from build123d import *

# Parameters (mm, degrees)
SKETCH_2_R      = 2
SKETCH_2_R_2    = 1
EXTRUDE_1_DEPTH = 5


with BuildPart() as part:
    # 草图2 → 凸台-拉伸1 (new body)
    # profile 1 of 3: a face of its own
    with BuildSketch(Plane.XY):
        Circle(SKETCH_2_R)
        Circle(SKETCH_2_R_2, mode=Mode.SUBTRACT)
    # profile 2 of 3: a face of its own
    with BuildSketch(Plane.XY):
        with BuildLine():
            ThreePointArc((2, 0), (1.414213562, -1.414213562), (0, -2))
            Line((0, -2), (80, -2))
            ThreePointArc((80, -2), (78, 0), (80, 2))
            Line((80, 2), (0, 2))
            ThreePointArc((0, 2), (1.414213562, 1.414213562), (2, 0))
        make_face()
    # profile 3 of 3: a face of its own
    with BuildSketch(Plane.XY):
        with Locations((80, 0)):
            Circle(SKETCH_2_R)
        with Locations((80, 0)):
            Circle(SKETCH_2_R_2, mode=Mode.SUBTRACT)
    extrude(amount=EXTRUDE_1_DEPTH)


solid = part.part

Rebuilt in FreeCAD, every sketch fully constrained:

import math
import FreeCAD as App
import Part
import Sketcher
from FreeCAD import Vector

doc = App.newDocument("Part")
body = doc.addObject("PartDesign::Body", "Body")

sketch1 = body.newObject("Sketcher::SketchObject", "Sketch")
sketch1.AttachmentSupport = (doc.getObject("XY_Plane"), [""])
sketch1.MapMode = "FlatFace"
sketch1.addGeometry(Part.ArcOfCircle(Part.Circle(Vector(0, 0, 0), Vector(0, 0, 1), 2), math.radians(90), math.radians(270)), False)
sketch1.addGeometry(Part.LineSegment(Vector(0, -2, 0), Vector(80, -2, 0)), False)
sketch1.addGeometry(Part.ArcOfCircle(Part.Circle(Vector(80, 0, 0), Vector(0, 0, 1), 2), math.radians(-90), math.radians(90)), False)
sketch1.addGeometry(Part.LineSegment(Vector(80, 2, 0), Vector(0, 2, 0)), False)
sketch1.addGeometry(Part.Circle(Vector(0, 0, 0), Vector(0, 0, 1), 1), False)
sketch1.addGeometry(Part.Circle(Vector(80, 0, 0), Vector(0, 0, 1), 1), False)
sketch1.addConstraint(Sketcher.Constraint("Tangent", 0, 2, 1, 1))
sketch1.addConstraint(Sketcher.Constraint("Tangent", 1, 2, 2, 1))
sketch1.addConstraint(Sketcher.Constraint("Tangent", 2, 2, 3, 1))
sketch1.addConstraint(Sketcher.Constraint("Tangent", 3, 2, 0, 1))
sketch1.addConstraint(Sketcher.Constraint("Horizontal", 1))
sketch1.addConstraint(Sketcher.Constraint("Horizontal", 3))
sketch1.addConstraint(Sketcher.Constraint("Coincident", 0, 3, -1, 1))
sketch1.addConstraint(Sketcher.Constraint("Coincident", 4, 3, -1, 1))
sketch1.addConstraint(Sketcher.Constraint("Coincident", 5, 3, 2, 3))
sketch1.addConstraint(Sketcher.Constraint("Equal", 4, 5))
sketch1.addConstraint(Sketcher.Constraint("Diameter", 4, 2.0))
sketch1.addConstraint(Sketcher.Constraint("Radius", 0, 2.0))
sketch1.addConstraint(Sketcher.Constraint("DistanceX", 1, 1, 1, 2, 80.0))
pad1 = body.newObject("PartDesign::Pad", "Pad")
pad1.Profile = sketch1
pad1.Length = 5

doc.recompute()
